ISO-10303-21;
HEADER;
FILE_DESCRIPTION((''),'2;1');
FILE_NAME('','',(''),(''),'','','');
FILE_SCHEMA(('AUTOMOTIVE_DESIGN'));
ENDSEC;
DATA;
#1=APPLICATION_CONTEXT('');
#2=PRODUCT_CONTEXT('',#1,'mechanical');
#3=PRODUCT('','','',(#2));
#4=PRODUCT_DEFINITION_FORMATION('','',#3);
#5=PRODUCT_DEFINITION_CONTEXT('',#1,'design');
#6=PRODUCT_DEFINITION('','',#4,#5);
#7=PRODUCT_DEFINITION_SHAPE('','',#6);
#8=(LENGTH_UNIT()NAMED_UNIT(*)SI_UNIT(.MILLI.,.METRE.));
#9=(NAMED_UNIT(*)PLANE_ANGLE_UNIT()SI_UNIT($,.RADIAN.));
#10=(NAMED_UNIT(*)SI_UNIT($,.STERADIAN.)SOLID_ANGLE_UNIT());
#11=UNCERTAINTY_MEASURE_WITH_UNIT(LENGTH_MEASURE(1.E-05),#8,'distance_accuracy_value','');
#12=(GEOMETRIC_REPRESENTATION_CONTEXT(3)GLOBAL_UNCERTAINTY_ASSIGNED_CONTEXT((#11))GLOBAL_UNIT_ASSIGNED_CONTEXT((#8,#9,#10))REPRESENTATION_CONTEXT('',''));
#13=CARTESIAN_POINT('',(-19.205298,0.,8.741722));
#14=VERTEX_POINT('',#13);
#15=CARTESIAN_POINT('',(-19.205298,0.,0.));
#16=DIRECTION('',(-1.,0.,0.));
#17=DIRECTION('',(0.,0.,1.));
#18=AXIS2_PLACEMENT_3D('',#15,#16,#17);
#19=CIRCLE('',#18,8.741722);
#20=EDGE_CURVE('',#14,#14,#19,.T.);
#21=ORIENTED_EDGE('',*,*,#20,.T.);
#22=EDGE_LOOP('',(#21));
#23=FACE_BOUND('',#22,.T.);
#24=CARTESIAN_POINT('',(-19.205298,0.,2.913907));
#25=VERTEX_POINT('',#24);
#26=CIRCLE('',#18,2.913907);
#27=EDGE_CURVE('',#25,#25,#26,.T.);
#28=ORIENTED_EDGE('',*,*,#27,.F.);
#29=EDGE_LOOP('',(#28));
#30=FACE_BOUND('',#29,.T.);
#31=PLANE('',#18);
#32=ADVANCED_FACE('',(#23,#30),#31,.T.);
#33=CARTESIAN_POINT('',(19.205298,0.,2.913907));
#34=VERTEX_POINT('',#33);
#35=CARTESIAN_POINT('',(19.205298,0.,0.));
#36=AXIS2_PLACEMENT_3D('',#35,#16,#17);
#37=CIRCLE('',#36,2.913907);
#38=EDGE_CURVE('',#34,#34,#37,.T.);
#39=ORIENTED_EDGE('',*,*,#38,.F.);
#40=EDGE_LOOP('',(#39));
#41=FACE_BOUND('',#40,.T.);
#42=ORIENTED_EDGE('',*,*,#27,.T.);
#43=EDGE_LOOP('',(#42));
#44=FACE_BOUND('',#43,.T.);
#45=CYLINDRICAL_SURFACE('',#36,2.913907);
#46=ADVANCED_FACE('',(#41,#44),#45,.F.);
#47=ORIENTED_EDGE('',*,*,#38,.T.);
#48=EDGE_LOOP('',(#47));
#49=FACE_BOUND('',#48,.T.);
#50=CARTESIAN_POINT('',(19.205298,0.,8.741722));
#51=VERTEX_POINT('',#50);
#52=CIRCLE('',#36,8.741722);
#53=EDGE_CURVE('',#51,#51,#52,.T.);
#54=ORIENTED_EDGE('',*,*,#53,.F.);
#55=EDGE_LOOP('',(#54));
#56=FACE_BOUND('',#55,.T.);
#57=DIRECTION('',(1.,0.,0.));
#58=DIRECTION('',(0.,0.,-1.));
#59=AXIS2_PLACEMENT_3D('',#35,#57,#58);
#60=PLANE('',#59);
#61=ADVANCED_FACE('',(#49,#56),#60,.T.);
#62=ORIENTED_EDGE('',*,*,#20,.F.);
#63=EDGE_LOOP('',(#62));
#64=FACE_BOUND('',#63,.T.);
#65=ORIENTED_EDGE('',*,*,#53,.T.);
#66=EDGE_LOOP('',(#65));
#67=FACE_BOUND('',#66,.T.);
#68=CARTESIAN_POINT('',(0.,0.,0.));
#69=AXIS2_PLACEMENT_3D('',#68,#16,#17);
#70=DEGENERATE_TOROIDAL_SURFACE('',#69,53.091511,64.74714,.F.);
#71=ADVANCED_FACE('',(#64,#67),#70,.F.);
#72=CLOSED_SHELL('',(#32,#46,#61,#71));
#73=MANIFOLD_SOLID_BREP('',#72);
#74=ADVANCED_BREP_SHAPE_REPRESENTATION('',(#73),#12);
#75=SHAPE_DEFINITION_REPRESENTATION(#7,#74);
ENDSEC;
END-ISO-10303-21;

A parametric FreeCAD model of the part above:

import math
import FreeCAD as App
import Part
import Sketcher
from FreeCAD import Vector
Q = App.Units.Quantity

doc = App.newDocument("Part")
body = doc.addObject("PartDesign::Body", "Body")

# Sketch on XZ plane
sketch1 = doc.addObject("Sketcher::SketchObject", "Sketch")
body.addObject(sketch1)
sketch1.AttachmentSupport = (doc.XZ_Plane, [""])
sketch1.MapMode = "FlatFace"
sketch1.addGeometry([
    Part.LineSegment(Vector(19, 0, 0), Vector(-19, 0, 0)),
    Part.LineSegment(Vector(-19, 0, 0), Vector(-19, 9, 0)),
    Part.ArcOfCircle(Part.Circle(Vector(0, -53, 0), Vector(0, 0, 1), 65), math.radians(73), math.radians(107)),
    Part.LineSegment(Vector(19, 9, 0), Vector(19, 0, 0)),
], False)
sketch1.addConstraint([
    Sketcher.Constraint("Coincident", 0, 2, 1, 1),
    Sketcher.Constraint("Coincident", 1, 2, 2, 2),
    Sketcher.Constraint("Coincident", 2, 1, 3, 1),
    Sketcher.Constraint("Coincident", 3, 2, 0, 1),
    Sketcher.Constraint("Horizontal", 0),
    Sketcher.Constraint("Vertical", 1),
    Sketcher.Constraint("Vertical", 3),
    Sketcher.Constraint("Symmetric", 0, 2, 3, 2, -1, 1),
    Sketcher.Constraint("PointOnObject", 2, 3, -2),
    Sketcher.Constraint("Radius", 2, Q("64.74714 mm")),
    Sketcher.Constraint("DistanceY", 1, 1, 1, 2, Q("8.741722 mm")),
    Sketcher.Constraint("DistanceX", 0, 2, -1, 1, Q("19.205298 mm")),
])
revolution = doc.addObject("PartDesign::Revolution", "Revolution")
body.addObject(revolution)
revolution.Profile = sketch1
revolution.ReferenceAxis = (sketch1, ["H_Axis"])
revolution.Angle = 360

# Sketch on YZ plane
sketch2 = doc.addObject("Sketcher::SketchObject", "Sketch001")
body.addObject(sketch2)
sketch2.AttachmentSupport = (doc.YZ_Plane, [""])
sketch2.MapMode = "FlatFace"
sketch2.AttachmentOffset = App.Placement(Vector(0, 0, -19.205298), App.Rotation())
sketch2.addGeometry(Part.Circle(Vector(0, 0, 0), Vector(0, 0, 1), 2.9), False)
sketch2.addConstraint([
    Sketcher.Constraint("Coincident", 0, 3, -1, 1),
    Sketcher.Constraint("Diameter", 0, Q("5.827815 mm")),
])
pocket1 = doc.addObject("PartDesign::Pocket", "Pocket")
body.addObject(pocket1)
pocket1.Profile = sketch2
pocket1.Type = "ThroughAll"
pocket1.Reversed = True

doc.recompute()
